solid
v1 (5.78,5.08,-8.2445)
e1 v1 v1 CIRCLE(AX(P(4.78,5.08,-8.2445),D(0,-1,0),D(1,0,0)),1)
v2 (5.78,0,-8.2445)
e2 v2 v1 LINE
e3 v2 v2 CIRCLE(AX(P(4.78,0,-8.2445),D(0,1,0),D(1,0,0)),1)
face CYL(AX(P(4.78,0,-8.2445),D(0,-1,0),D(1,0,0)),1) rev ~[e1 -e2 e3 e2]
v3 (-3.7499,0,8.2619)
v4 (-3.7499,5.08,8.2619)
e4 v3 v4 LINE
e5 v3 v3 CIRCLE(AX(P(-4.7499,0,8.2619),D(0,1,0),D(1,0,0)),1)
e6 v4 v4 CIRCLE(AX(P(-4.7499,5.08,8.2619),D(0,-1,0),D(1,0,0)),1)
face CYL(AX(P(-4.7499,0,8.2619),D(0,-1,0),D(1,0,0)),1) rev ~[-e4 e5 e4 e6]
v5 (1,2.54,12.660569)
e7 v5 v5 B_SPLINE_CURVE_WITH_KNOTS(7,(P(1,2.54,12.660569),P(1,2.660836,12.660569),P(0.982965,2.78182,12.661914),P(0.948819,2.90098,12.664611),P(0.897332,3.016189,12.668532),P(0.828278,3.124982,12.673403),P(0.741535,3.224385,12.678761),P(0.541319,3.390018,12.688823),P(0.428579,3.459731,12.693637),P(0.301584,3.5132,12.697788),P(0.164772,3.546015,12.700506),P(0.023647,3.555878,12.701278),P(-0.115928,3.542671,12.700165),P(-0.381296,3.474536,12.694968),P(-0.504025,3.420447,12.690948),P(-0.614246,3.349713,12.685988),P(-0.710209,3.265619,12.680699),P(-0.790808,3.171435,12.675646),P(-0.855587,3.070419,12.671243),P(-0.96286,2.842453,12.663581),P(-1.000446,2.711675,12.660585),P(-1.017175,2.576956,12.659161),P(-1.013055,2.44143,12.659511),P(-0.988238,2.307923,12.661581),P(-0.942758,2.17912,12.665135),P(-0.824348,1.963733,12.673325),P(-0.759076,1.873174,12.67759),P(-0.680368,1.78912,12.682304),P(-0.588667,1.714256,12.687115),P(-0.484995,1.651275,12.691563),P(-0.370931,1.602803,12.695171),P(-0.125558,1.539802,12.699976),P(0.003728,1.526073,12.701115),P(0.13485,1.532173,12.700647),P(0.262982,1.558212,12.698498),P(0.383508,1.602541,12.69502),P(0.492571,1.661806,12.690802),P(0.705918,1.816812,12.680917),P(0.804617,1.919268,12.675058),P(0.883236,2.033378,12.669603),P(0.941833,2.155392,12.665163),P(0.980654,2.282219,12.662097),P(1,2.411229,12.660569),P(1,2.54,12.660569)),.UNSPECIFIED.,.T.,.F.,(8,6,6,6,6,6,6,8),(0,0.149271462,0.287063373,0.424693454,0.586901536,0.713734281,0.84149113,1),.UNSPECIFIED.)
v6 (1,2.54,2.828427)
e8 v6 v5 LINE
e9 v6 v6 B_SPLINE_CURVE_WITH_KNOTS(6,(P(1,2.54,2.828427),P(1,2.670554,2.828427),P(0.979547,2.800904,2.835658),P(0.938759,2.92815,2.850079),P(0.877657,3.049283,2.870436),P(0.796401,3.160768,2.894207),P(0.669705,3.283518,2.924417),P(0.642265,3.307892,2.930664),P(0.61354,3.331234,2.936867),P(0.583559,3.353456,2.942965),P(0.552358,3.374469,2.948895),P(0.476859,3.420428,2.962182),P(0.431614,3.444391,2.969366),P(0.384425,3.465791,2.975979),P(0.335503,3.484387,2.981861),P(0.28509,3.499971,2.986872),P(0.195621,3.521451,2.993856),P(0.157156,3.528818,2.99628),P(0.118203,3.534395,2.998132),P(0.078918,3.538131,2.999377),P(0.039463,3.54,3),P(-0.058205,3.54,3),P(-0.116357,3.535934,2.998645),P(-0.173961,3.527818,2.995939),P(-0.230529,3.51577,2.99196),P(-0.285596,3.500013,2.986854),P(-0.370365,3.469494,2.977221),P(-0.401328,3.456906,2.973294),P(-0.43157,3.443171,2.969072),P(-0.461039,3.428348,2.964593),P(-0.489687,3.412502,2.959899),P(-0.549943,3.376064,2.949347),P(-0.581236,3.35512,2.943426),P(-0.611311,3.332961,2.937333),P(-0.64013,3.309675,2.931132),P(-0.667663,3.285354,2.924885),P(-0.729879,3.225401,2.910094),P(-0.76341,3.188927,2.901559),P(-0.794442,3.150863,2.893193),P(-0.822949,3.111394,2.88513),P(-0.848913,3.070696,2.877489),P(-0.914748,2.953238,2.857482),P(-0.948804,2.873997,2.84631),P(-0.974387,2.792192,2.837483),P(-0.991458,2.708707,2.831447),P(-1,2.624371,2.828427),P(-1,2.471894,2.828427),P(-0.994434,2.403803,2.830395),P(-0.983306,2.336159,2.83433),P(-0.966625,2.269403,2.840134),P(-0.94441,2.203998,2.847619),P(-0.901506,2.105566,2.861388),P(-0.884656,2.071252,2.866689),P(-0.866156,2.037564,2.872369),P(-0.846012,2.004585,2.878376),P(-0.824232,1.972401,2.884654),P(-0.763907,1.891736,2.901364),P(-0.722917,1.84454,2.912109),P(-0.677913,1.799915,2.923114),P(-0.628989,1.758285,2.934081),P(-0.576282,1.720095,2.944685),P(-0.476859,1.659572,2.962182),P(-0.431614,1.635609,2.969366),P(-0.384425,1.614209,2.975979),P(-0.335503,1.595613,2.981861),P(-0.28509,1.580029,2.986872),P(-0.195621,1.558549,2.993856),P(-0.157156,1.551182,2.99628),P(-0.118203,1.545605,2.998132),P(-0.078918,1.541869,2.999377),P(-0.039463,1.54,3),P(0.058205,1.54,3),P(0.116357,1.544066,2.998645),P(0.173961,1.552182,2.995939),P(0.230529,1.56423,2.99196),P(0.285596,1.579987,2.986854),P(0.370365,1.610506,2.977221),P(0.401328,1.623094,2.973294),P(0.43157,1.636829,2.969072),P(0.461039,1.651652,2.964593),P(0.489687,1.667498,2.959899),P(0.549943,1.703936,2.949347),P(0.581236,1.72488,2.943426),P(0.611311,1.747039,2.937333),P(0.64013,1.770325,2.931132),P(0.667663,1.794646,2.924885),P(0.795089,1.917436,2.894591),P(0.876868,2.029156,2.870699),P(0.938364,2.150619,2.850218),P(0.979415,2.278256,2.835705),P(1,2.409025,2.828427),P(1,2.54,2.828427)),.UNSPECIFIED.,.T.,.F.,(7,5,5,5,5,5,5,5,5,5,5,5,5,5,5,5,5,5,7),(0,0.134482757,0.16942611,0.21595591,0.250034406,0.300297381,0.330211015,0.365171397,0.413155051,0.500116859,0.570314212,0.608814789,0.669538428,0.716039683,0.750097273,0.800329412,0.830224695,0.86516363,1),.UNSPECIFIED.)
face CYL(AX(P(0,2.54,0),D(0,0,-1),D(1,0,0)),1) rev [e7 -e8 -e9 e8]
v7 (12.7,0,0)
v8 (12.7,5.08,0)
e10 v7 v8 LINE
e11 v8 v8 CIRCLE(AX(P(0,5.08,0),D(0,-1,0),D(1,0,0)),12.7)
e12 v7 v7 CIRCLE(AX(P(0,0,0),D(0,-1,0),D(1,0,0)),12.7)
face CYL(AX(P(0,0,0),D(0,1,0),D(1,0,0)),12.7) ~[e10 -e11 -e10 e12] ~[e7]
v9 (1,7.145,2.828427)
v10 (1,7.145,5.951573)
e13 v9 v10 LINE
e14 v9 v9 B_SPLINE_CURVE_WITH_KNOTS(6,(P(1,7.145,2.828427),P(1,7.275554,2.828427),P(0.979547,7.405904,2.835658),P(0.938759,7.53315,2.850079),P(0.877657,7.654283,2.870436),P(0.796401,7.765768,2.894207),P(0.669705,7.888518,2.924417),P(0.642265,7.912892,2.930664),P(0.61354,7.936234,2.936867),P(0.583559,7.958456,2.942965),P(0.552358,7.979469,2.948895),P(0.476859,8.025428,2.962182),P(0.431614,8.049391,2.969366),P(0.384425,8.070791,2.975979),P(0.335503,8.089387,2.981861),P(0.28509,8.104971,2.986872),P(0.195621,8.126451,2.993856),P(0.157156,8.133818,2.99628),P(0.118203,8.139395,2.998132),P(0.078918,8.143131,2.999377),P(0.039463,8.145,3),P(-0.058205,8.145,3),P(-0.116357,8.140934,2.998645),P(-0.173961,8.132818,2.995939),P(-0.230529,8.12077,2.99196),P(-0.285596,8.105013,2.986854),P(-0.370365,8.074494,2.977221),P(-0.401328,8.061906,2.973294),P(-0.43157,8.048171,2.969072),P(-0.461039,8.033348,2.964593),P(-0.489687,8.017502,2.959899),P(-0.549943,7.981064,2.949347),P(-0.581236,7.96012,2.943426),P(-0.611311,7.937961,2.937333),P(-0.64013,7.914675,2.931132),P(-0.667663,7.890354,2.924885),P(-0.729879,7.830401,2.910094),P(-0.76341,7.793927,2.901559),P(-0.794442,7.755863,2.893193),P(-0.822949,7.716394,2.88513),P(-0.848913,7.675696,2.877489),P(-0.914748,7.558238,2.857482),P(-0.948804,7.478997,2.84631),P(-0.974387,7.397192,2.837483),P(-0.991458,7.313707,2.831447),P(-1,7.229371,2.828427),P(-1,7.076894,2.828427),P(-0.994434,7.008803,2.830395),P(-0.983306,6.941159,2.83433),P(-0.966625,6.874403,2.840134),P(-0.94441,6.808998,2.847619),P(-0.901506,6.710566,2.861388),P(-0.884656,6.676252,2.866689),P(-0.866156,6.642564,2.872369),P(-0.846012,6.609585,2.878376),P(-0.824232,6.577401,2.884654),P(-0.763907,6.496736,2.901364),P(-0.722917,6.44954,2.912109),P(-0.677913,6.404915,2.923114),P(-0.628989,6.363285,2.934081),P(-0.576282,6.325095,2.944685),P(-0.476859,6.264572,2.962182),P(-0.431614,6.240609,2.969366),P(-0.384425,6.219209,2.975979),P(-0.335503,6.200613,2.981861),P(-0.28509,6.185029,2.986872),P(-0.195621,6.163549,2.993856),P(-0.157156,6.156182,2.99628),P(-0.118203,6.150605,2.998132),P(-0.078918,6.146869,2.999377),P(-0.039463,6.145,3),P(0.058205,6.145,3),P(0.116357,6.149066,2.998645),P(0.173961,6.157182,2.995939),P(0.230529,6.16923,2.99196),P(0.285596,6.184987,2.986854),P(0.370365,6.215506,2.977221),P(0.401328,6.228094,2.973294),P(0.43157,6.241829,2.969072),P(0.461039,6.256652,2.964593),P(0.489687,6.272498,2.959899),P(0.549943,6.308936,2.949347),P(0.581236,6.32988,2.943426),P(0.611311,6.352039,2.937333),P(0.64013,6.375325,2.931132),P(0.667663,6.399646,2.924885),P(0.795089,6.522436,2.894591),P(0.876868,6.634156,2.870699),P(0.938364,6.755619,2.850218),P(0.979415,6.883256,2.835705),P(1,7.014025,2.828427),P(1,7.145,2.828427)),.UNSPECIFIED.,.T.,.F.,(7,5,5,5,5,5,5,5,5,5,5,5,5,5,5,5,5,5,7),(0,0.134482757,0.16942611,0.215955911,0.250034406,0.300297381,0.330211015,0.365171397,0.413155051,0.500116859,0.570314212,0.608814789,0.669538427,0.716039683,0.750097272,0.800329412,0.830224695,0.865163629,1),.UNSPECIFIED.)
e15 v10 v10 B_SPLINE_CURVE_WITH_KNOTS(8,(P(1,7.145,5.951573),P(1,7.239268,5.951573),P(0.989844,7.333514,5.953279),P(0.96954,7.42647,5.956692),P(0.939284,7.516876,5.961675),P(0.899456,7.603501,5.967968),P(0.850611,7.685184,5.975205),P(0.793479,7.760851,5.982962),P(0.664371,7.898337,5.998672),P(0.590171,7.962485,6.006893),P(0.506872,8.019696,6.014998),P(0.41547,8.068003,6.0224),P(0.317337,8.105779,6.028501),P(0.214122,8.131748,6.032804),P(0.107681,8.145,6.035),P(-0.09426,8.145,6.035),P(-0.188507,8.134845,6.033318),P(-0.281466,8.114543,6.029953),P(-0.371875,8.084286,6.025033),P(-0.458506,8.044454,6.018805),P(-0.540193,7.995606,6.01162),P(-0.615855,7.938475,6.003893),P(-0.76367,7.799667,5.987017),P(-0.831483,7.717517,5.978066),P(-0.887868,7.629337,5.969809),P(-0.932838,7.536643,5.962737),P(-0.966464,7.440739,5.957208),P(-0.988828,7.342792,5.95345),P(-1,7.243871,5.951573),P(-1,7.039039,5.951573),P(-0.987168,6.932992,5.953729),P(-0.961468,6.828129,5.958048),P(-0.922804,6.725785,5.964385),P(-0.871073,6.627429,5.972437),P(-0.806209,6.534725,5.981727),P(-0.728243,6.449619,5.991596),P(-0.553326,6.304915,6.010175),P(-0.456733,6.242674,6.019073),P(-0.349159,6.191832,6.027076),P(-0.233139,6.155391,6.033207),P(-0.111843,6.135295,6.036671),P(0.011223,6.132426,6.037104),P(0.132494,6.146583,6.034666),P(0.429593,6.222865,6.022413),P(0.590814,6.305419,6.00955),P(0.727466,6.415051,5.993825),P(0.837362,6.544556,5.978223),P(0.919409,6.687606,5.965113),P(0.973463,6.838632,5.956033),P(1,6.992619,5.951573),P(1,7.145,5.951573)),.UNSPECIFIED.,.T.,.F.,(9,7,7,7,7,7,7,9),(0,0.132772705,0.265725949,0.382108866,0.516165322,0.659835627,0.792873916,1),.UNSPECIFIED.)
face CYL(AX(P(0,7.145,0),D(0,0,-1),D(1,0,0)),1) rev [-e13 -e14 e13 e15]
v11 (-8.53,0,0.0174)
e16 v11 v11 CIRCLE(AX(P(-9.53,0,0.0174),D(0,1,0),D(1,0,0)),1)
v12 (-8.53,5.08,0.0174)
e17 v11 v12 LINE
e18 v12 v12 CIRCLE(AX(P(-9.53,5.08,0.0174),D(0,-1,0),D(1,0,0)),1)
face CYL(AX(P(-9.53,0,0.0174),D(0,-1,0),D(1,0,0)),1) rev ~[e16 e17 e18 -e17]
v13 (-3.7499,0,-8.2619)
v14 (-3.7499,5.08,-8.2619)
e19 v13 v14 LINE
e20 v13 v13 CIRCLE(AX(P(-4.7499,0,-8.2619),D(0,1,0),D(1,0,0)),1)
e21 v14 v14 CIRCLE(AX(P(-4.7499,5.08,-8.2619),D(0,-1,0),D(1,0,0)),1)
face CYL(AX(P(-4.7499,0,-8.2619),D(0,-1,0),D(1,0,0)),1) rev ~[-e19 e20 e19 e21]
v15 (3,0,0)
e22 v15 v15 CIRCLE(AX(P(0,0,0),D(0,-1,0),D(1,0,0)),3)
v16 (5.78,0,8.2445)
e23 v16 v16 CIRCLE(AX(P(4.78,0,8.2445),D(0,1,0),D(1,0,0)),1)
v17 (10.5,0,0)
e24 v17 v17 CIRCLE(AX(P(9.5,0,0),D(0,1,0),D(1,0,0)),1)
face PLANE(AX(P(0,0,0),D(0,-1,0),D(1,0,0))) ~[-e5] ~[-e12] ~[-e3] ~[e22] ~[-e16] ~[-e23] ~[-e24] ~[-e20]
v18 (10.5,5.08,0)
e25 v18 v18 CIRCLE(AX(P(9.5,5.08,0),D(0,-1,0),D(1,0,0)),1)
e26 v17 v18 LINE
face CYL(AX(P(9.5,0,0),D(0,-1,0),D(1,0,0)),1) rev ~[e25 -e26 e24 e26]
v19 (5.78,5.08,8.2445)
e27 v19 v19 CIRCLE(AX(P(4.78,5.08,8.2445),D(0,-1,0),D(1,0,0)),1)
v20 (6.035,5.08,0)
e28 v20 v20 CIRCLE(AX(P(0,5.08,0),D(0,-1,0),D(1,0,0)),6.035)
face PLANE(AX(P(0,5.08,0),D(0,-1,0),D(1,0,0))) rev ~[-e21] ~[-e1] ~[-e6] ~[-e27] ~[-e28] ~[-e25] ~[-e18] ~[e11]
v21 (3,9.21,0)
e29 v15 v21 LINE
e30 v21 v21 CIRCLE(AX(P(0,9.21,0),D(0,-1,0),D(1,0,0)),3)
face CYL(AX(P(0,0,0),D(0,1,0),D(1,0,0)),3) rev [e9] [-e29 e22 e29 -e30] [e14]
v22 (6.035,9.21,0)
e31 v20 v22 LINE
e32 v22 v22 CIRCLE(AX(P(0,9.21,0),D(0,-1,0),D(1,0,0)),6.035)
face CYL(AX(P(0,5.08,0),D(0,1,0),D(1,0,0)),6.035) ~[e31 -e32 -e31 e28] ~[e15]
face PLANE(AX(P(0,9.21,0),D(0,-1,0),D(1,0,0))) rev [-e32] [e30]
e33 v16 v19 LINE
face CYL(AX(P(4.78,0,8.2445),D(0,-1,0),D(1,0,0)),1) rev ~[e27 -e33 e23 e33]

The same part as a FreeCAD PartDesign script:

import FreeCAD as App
import Part
import Sketcher

V = App.Vector
Q = App.Units.Quantity


def add_polygon(sketch, points):
    """Adds a closed chain of lines whose ends are joined by coincident constraints."""
    first, n = sketch.GeometryCount, len(points)
    for a, b in zip(points, points[1:] + points[:1]):
        sketch.addGeometry(Part.LineSegment(App.Vector(*a, 0), App.Vector(*b, 0)), False)
    for i in range(n):
        sketch.addConstraint(Sketcher.Constraint("Coincident", first + i, 2, first + (i + 1) % n, 1))

doc = App.newDocument("Part")
params = doc.addObject("Spreadsheet::Sheet", "Params")
for row, (alias, value) in enumerate([
    ("sketch1_width", "9.7 mm"),
    ("sketch1_height", "9.21 mm"),
    ("sketch1_height2", "5.08 mm"),
    ("revolution_angle", "360 deg"),
    ("sketch2_diameter", "2 mm"),
    ("pocket1_length", "111 mm"),
    ("sketch3_diameter", "2 mm"),
    ("pocket2_length", "12 mm"),
], start=1):
    params.set(f"A{row}", alias)
    params.set(f"B{row}", "=" + value)
    params.setAlias(f"B{row}", alias)

body = doc.addObject("PartDesign::Body", "Body")

# Sketch on XY plane
sketch1 = body.newObject("Sketcher::SketchObject", "Sketch")
sketch1.AttachmentSupport = (doc.getObject("XY_Plane"), [""])
sketch1.MapMode = "FlatFace"
add_polygon(sketch1, [(6, 9.2), (3, 9.2), (3, 0), (12.7, 0), (12.7, 5.1), (6, 5.1)])  # lines 0-5
sketch1.addConstraint([
    Sketcher.Constraint("Horizontal", 0),
    Sketcher.Constraint("Vertical", 1),
    Sketcher.Constraint("Horizontal", 2),
    Sketcher.Constraint("Vertical", 3),
    Sketcher.Constraint("Horizontal", 4),
    Sketcher.Constraint("Vertical", 5),
    Sketcher.Constraint("PointOnObject", 1, 2, -1),
    Sketcher.Constraint("DistanceX", 2, 1, 2, 2, Q("9.7 mm")),
    Sketcher.Constraint("DistanceX", -1, 1, 0, 2, Q("3 mm")),
    Sketcher.Constraint("DistanceY", 1, 2, 1, 1, Q("9.21 mm")),
    Sketcher.Constraint("DistanceY", 3, 1, 3, 2, Q("5.08 mm")),
    Sketcher.Constraint("DistanceX", 0, 2, 0, 1, Q("3.035 mm")),
])
sketch1.setExpression("Constraints[13]", "Params.sketch1_width")
sketch1.setExpression("Constraints[15]", "Params.sketch1_height")
sketch1.setExpression("Constraints[16]", "Params.sketch1_height2")
revolution = body.newObject("PartDesign::Revolution", "Revolution")
revolution.Profile = sketch1
revolution.ReferenceAxis = (sketch1, ["V_Axis"])
revolution.setExpression("Angle", "Params.revolution_angle")

# Sketch on XY plane
sketch2 = body.newObject("Sketcher::SketchObject", "Sketch001")
sketch2.AttachmentSupport = (doc.getObject("XY_Plane"), [""])
sketch2.MapMode = "FlatFace"
sketch2.addGeometry([
    Part.Circle(V(0, 2.5, 0), V(0, 0, 1), 1),
    Part.Circle(V(0, 7.1, 0), V(0, 0, 1), 1),
], False)
sketch2.addConstraint([
    Sketcher.Constraint("Equal", 0, 1),
    Sketcher.Constraint("PointOnObject", 0, 3, -2),
    Sketcher.Constraint("PointOnObject", 1, 3, -2),
    Sketcher.Constraint("Diameter", 0, Q("2 mm")),
    Sketcher.Constraint("DistanceY", -1, 1, 0, 3, Q("2.54 mm")),
    Sketcher.Constraint("DistanceY", -1, 1, 1, 3, Q("7.145 mm")),
])
sketch2.setExpression("Constraints[3]", "Params.sketch2_diameter")
pocket1 = body.newObject("PartDesign::Pocket", "Pocket")
pocket1.Profile = sketch2
pocket1.setExpression("Length", "Params.pocket1_length")
pocket1.Reversed = True

# Sketch on XZ plane
sketch3 = body.newObject("Sketcher::SketchObject", "Sketch002")
sketch3.AttachmentSupport = (doc.getObject("XZ_Plane"), [""])
sketch3.MapMode = "FlatFace"
sketch3.addGeometry([
    Part.Circle(V(9.5, 0, 0), V(0, 0, 1), 1),  # 0
    Part.Circle(V(4.8, 8.2, 0), V(0, 0, 1), 1),  # 1
    Part.Circle(V(4.8, -8.2, 0), V(0, 0, 1), 1),  # 2
    Part.Circle(V(-4.7, 8.3, 0), V(0, 0, 1), 1),  # 3
    Part.Circle(V(-4.7, -8.3, 0), V(0, 0, 1), 1),  # 4
    Part.Circle(V(-9.5, 0, 0), V(0, 0, 1), 1),  # 5
], False)
sketch3.addConstraint([
    Sketcher.Constraint("Equal", 0, 1),
    Sketcher.Constraint("Equal", 1, 2),
    Sketcher.Constraint("Equal", 2, 3),
    Sketcher.Constraint("Equal", 3, 4),
    Sketcher.Constraint("Equal", 4, 5),
    Sketcher.Constraint("Symmetric", 1, 3, 2, 3, -1),
    Sketcher.Constraint("Symmetric", 3, 3, 4, 3, -1),
    Sketcher.Constraint("PointOnObject", 0, 3, -1),
    Sketcher.Constraint("Diameter", 0, Q("2 mm")),
    Sketcher.Constraint("DistanceX", -1, 1, 0, 3, Q("9.5 mm")),
    Sketcher.Constraint("DistanceX", -1, 1, 1, 3, Q("4.78 mm")),
    Sketcher.Constraint("DistanceX", 3, 3, -1, 1, Q("4.75 mm")),
    Sketcher.Constraint("DistanceX", 5, 3, -1, 1, Q("9.53 mm")),
    Sketcher.Constraint("DistanceY", -1, 1, 3, 3, Q("8.262 mm")),
    Sketcher.Constraint("DistanceY", 2, 3, 1, 3, Q("16.489 mm")),
    Sketcher.Constraint("DistanceY", 5, 3, 1, 3, Q("8.227 mm")),
])
sketch3.setExpression("Constraints[8]", "Params.sketch3_diameter")
pocket2 = body.newObject("PartDesign::Pocket", "Pocket001")
pocket2.Profile = sketch3
pocket2.setExpression("Length", "Params.pocket2_length")

doc.recompute()
